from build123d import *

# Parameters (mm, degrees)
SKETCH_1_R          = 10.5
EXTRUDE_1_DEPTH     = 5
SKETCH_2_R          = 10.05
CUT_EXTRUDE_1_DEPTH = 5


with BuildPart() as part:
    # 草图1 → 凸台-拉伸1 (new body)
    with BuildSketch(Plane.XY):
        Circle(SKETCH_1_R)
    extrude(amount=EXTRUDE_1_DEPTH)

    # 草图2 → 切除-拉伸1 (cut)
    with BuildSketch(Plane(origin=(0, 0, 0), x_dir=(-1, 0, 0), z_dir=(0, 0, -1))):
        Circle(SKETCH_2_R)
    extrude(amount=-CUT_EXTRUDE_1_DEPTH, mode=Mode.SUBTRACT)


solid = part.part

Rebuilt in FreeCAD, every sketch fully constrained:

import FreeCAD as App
import Part
import Sketcher
from FreeCAD import Vector
Q = App.Units.Quantity

doc = App.newDocument("Part")
body = doc.addObject("PartDesign::Body", "Body")

sketch1 = body.newObject("Sketcher::SketchObject", "Sketch")
sketch1.AttachmentSupport = (doc.getObject("XY_Plane"), [""])
sketch1.MapMode = "FlatFace"
sketch1.addGeometry(Part.Circle(Vector(0, 0, 0), Vector(0, 0, 1), 10), False)
sketch1.addConstraint([
    Sketcher.Constraint("Coincident", 0, 3, -1, 1),
    Sketcher.Constraint("Diameter", 0, Q("21 mm")),
])
pad1 = body.newObject("PartDesign::Pad", "Pad")
pad1.Profile = sketch1
pad1.Length = 5

sketch2 = body.newObject("Sketcher::SketchObject", "Sketch001")
sketch2.AttachmentSupport = (doc.getObject("XY_Plane"), [""])
sketch2.MapMode = "FlatFace"
sketch2.addGeometry(Part.Circle(Vector(0, 0, 0), Vector(0, 0, 1), 10), False)
sketch2.addConstraint([
    Sketcher.Constraint("Coincident", 0, 3, -1, 1),
    Sketcher.Constraint("Diameter", 0, Q("20.1 mm")),
])
pocket1 = body.newObject("PartDesign::Pocket", "Pocket")
pocket1.Profile = sketch2
pocket1.Length = 5
pocket1.Reversed = True

doc.recompute()
